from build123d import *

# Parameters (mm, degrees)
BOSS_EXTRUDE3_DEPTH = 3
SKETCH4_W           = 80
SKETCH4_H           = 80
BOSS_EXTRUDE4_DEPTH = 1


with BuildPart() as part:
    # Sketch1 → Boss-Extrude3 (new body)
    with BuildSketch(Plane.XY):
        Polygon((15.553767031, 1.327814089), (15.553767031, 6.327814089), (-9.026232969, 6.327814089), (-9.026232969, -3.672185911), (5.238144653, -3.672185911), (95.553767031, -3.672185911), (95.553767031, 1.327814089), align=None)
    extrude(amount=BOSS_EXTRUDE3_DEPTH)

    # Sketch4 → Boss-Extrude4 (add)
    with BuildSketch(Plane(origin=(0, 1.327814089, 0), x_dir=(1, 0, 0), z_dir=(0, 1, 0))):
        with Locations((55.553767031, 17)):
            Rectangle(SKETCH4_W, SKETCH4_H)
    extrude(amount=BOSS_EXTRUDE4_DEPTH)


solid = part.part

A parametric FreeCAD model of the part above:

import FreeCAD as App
import Part
import Sketcher
from FreeCAD import Vector


def add_polygon(sketch, points):
    """Adds a closed chain of lines whose ends are joined by coincident constraints."""
    first, n = sketch.GeometryCount, len(points)
    for a, b in zip(points, points[1:] + points[:1]):
        sketch.addGeometry(Part.LineSegment(App.Vector(*a, 0), App.Vector(*b, 0)), False)
    for i in range(n):
        sketch.addConstraint(Sketcher.Constraint("Coincident", first + i, 2, first + (i + 1) % n, 1))

doc = App.newDocument("Part")
params = doc.addObject("Spreadsheet::Sheet", "Params")
for row, (alias, value) in enumerate([
    ("sketch1_width", "80 mm"),
    ("sketch1_height", "5 mm"),
    ("sketch1_width2", "24.58 mm"),
    ("pad1_length", "3 mm"),
    ("sketch2_width", "80 mm"),
    ("pad2_length", "1 mm"),
], start=1):
    params.set(f"A{row}", alias)
    params.set(f"B{row}", "=" + value)
    params.setAlias(f"B{row}", alias)

body = doc.addObject("PartDesign::Body", "Body")

# Sketch on XY plane
sketch1 = doc.addObject("Sketcher::SketchObject", "Sketch")
body.addObject(sketch1)
sketch1.AttachmentSupport = (doc.XY_Plane, [""])
sketch1.MapMode = "FlatFace"
add_polygon(sketch1, [(15.553767, 1.327814), (15.553767, 6.327814), (-9.026233, 6.327814), (-9.026233, -3.672186), (95.553767, -3.672186), (95.553767, 1.327814)])  # lines 0-5
sketch1.addConstraint(Sketcher.Constraint("Vertical", 0))
sketch1.addConstraint(Sketcher.Constraint("Horizontal", 1))
sketch1.addConstraint(Sketcher.Constraint("Vertical", 2))
sketch1.addConstraint(Sketcher.Constraint("Horizontal", 3))
sketch1.addConstraint(Sketcher.Constraint("Vertical", 4))
sketch1.addConstraint(Sketcher.Constraint("Horizontal", 5))
sketch1.addConstraint(Sketcher.Constraint("Equal", 0, 4))
sketch1.addConstraint(Sketcher.Constraint("DistanceX", 5, 2, 5, 1, 80.0))
sketch1.addConstraint(Sketcher.Constraint("DistanceY", 0, 1, 0, 2, 5.0))
sketch1.addConstraint(Sketcher.Constraint("DistanceX", 1, 2, 1, 1, 24.58))
sketch1.addConstraint(Sketcher.Constraint("DistanceX", -1, 1, 0, 2, 15.553767))
sketch1.addConstraint(Sketcher.Constraint("DistanceY", -1, 1, 0, 2, 6.327814))
sketch1.setExpression("Constraints[13]", "Params.sketch1_width")
sketch1.setExpression("Constraints[14]", "Params.sketch1_height")
sketch1.setExpression("Constraints[15]", "Params.sketch1_width2")
pad1 = doc.addObject("PartDesign::Pad", "Pad")
body.addObject(pad1)
pad1.Profile = sketch1
pad1.setExpression("Length", "Params.pad1_length")

# Sketch on XZ plane
sketch2 = doc.addObject("Sketcher::SketchObject", "Sketch001")
body.addObject(sketch2)
sketch2.AttachmentSupport = (doc.XZ_Plane, [""])
sketch2.MapMode = "FlatFace"
sketch2.AttachmentOffset = App.Placement(Vector(0, 0, -1.327814), App.Rotation())
add_polygon(sketch2, [(15.553767, -57), (15.553767, 23), (95.553767, 23), (95.553767, -57)])  # lines 0-3
sketch2.addConstraint(Sketcher.Constraint("Vertical", 0))
sketch2.addConstraint(Sketcher.Constraint("Horizontal", 1))
sketch2.addConstraint(Sketcher.Constraint("Vertical", 2))
sketch2.addConstraint(Sketcher.Constraint("Horizontal", 3))
sketch2.addConstraint(Sketcher.Constraint("Equal", 3, 0))
sketch2.addConstraint(Sketcher.Constraint("DistanceX", 1, 1, 1, 2, 80.0))
sketch2.addConstraint(Sketcher.Constraint("DistanceY", -1, 1, 0, 2, 23.0))
sketch2.addConstraint(Sketcher.Constraint("DistanceX", -1, 1, 0, 2, 15.553767))
sketch2.setExpression("Constraints[9]", "Params.sketch2_width")
pad2 = doc.addObject("PartDesign::Pad", "Pad001")
body.addObject(pad2)
pad2.Profile = sketch2
pad2.setExpression("Length", "Params.pad2_length")
pad2.Reversed = True

doc.recompute()
